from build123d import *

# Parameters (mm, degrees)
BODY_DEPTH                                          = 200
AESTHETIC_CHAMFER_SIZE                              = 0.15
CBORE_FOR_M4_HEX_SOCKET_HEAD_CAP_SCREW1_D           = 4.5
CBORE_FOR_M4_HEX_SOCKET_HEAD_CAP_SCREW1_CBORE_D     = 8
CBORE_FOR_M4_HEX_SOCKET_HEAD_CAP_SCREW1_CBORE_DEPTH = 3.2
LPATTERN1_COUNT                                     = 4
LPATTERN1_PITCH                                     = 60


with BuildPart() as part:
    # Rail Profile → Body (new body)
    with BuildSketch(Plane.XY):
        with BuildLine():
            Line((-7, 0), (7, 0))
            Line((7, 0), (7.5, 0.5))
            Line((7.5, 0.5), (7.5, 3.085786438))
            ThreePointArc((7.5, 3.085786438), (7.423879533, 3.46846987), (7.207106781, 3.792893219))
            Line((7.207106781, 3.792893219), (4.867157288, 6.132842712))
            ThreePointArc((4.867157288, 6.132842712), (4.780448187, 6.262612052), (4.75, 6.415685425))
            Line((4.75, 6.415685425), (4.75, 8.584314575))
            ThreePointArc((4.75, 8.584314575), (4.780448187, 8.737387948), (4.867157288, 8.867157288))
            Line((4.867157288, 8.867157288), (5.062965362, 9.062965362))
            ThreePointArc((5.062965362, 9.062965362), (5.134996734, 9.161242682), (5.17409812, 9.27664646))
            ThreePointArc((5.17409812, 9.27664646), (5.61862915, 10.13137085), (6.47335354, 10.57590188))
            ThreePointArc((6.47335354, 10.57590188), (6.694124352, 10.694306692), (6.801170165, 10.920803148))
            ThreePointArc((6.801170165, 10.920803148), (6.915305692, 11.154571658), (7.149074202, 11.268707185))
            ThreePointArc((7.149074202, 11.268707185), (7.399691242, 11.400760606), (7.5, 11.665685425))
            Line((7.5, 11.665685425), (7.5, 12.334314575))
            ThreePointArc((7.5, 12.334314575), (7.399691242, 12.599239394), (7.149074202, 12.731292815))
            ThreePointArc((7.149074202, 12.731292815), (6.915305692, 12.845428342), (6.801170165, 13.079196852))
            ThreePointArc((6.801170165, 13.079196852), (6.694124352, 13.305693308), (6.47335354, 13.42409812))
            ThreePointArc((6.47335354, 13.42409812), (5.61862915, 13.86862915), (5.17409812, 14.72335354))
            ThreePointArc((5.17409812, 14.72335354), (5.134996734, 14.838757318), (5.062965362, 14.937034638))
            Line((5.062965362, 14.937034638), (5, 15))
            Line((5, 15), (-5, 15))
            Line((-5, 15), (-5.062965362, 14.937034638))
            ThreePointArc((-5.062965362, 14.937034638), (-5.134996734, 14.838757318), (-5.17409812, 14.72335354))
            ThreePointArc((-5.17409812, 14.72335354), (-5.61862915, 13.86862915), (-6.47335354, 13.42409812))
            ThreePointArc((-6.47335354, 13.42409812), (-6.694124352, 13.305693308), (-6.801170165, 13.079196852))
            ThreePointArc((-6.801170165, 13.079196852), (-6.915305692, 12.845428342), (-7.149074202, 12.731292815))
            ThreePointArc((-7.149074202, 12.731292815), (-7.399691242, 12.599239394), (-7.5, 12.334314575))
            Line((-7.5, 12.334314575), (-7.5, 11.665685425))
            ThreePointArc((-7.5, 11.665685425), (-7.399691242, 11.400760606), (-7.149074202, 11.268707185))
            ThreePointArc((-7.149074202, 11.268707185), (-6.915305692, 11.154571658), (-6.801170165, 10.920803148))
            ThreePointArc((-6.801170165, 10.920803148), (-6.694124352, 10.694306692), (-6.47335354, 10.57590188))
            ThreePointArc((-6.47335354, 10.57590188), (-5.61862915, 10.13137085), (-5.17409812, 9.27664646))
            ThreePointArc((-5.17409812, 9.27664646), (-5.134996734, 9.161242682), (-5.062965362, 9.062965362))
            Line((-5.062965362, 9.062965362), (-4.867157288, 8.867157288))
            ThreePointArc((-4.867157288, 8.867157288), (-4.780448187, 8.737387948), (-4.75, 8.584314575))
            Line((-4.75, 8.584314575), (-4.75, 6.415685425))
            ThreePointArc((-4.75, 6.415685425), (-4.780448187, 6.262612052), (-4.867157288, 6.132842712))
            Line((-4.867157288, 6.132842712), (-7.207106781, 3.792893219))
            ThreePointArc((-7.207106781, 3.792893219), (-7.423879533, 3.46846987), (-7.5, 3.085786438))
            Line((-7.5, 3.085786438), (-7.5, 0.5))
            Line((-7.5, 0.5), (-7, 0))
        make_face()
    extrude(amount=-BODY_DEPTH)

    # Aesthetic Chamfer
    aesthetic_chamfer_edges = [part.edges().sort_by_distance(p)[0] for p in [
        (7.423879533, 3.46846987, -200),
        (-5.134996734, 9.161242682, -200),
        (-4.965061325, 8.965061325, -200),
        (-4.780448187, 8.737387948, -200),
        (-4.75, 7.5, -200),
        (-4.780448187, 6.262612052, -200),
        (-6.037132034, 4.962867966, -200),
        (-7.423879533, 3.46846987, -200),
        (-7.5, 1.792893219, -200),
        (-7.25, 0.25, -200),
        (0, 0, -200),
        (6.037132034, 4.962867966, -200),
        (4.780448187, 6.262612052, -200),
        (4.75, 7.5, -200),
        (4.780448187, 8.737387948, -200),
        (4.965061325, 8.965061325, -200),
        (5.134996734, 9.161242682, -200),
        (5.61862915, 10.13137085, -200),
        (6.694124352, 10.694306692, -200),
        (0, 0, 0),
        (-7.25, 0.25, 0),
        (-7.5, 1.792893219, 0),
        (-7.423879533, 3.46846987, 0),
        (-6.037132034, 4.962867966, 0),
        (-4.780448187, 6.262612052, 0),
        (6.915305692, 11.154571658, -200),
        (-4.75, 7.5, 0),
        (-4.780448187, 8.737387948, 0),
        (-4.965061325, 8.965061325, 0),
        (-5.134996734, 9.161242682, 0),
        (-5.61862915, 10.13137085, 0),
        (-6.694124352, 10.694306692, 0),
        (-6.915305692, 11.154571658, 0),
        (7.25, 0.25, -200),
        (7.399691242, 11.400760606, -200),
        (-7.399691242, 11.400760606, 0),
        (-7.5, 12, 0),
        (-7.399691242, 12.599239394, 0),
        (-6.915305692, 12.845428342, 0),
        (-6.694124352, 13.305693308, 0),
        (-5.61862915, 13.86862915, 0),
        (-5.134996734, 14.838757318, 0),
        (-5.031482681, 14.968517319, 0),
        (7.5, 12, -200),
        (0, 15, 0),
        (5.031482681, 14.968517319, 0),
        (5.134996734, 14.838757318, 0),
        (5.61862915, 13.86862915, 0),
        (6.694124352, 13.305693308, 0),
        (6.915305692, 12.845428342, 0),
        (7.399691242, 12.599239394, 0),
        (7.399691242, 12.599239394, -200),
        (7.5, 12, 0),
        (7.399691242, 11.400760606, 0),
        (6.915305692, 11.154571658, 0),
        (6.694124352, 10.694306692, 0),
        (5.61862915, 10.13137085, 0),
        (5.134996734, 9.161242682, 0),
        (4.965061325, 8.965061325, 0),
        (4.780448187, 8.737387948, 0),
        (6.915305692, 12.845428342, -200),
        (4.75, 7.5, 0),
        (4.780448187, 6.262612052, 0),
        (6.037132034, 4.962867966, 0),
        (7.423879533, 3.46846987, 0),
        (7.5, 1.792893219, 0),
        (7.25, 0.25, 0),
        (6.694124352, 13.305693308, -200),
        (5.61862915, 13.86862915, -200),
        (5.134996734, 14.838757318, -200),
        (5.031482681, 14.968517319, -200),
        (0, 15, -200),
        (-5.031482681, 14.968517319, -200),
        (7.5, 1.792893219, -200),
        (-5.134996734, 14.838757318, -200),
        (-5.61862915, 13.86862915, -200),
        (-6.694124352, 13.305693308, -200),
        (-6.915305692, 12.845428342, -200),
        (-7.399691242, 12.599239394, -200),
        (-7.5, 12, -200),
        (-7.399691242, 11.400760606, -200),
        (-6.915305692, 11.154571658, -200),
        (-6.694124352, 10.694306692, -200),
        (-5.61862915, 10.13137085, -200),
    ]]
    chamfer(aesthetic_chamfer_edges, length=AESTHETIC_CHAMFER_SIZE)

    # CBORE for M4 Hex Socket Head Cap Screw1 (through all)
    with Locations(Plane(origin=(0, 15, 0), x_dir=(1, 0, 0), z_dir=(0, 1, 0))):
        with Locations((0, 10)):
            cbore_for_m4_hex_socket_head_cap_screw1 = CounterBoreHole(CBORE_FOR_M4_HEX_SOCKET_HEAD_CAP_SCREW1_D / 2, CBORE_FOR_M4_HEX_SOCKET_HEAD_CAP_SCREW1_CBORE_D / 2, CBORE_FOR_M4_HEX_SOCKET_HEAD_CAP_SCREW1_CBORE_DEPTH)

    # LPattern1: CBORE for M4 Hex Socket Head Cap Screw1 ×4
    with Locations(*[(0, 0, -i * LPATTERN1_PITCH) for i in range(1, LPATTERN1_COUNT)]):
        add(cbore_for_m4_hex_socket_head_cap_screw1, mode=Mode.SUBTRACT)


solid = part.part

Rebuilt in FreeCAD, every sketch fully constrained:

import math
import FreeCAD as App
import Part
import Sketcher

V = App.Vector
Q = App.Units.Quantity


def edges_at(feature, points):
    """Names of the edges that pass closest to the given points."""
    edges = feature.Shape.Edges
    near = lambda p: min(range(len(edges)), key=lambda i: edges[i].distToShape(Part.Vertex(*p))[0])
    return sorted({f"Edge{near(p) + 1}" for p in points})

doc = App.newDocument("Part")
body = doc.addObject("PartDesign::Body", "Body")

# Sketch on XY plane
sketch1 = body.newObject("Sketcher::SketchObject", "Sketch")
sketch1.AttachmentSupport = (doc.getObject("XY_Plane"), [""])
sketch1.MapMode = "FlatFace"
sketch1.addGeometry(Part.LineSegment(V(-7, 0, 0), V(7, 0, 0)), False)
sketch1.addGeometry(Part.LineSegment(V(7, 0, 0), V(7.5, 0.5, 0)), False)
sketch1.addGeometry(Part.LineSegment(V(7.5, 0.5, 0), V(7.5, 3.085786, 0)), False)
sketch1.addGeometry(Part.ArcOfCircle(Part.Circle(V(6.5, 3.085786, 0), V(0, 0, 1), 1), math.radians(0), math.radians(45)), False)
sketch1.addGeometry(Part.LineSegment(V(7.207107, 3.792893, 0), V(4.867157, 6.132843, 0)), False)
sketch1.addGeometry(Part.ArcOfCircle(Part.Circle(V(5.15, 6.415685, 0), V(0, 0, 1), 0.4), math.radians(180), math.radians(225)), False)
sketch1.addGeometry(Part.LineSegment(V(4.75, 6.415685, 0), V(4.75, 8.584315, 0)), False)
sketch1.addGeometry(Part.ArcOfCircle(Part.Circle(V(5.15, 8.584315, 0), V(0, 0, 1), 0.4), math.radians(135), math.radians(180)), False)
sketch1.addGeometry(Part.LineSegment(V(4.867157, 8.867157, 0), V(5.062965, 9.062965, 0)), False)
sketch1.addGeometry(Part.ArcOfCircle(Part.Circle(V(4.780123, 9.345808, 0), V(0, 0, 1), 0.4), math.radians(-45), math.radians(-9.956709)), False)
sketch1.addGeometry(Part.ArcOfCircle(Part.Circle(V(6.75, 9, 0), V(0, 0, 1), 1.6), math.radians(99.956709), math.radians(170.043291)), False)
sketch1.addGeometry(Part.ArcOfCircle(Part.Circle(V(6.404192, 10.969877, 0), V(0, 0, 1), 0.4), math.radians(-80.043291), math.radians(-7.047116)), False)
sketch1.addGeometry(Part.ArcOfCircle(Part.Circle(V(7.198148, 10.871729, 0), V(0, 0, 1), 0.4), math.radians(97.047116), math.radians(172.952884)), False)
sketch1.addGeometry(Part.ArcOfCircle(Part.Circle(V(7.1, 11.665685, 0), V(0, 0, 1), 0.4), math.radians(-82.952884), math.radians(0)), False)
sketch1.addGeometry(Part.LineSegment(V(7.5, 11.665685, 0), V(7.5, 12.334315, 0)), False)
sketch1.addGeometry(Part.ArcOfCircle(Part.Circle(V(7.1, 12.334315, 0), V(0, 0, 1), 0.4), math.radians(0), math.radians(82.952884)), False)
sketch1.addGeometry(Part.ArcOfCircle(Part.Circle(V(7.198148, 13.128271, 0), V(0, 0, 1), 0.4), math.radians(-172.952884), math.radians(-97.047116)), False)
sketch1.addGeometry(Part.ArcOfCircle(Part.Circle(V(6.404192, 13.030123, 0), V(0, 0, 1), 0.4), math.radians(7.047116), math.radians(80.043291)), False)
sketch1.addGeometry(Part.ArcOfCircle(Part.Circle(V(6.75, 15, 0), V(0, 0, 1), 1.6), math.radians(-170.043291), math.radians(-99.956709)), False)
sketch1.addGeometry(Part.ArcOfCircle(Part.Circle(V(4.780123, 14.654192, 0), V(0, 0, 1), 0.4), math.radians(9.956709), math.radians(45)), False)
sketch1.addGeometry(Part.LineSegment(V(5.062965, 14.937035, 0), V(5, 15, 0)), False)
sketch1.addGeometry(Part.LineSegment(V(5, 15, 0), V(-5, 15, 0)), False)
sketch1.addGeometry(Part.LineSegment(V(-5, 15, 0), V(-5.062965, 14.937035, 0)), False)
sketch1.addGeometry(Part.ArcOfCircle(Part.Circle(V(-4.780123, 14.654192, 0), V(0, 0, 1), 0.4), math.radians(135), math.radians(170.043291)), False)
sketch1.addGeometry(Part.ArcOfCircle(Part.Circle(V(-6.75, 15, 0), V(0, 0, 1), 1.6), math.radians(-80.043291), math.radians(-9.956709)), False)
sketch1.addGeometry(Part.ArcOfCircle(Part.Circle(V(-6.404192, 13.030123, 0), V(0, 0, 1), 0.4), math.radians(99.956709), math.radians(172.952884)), False)
sketch1.addGeometry(Part.ArcOfCircle(Part.Circle(V(-7.198148, 13.128271, 0), V(0, 0, 1), 0.4), math.radians(-82.952884), math.radians(-7.047116)), False)
sketch1.addGeometry(Part.ArcOfCircle(Part.Circle(V(-7.1, 12.334315, 0), V(0, 0, 1), 0.4), math.radians(97.047116), math.radians(180)), False)
sketch1.addGeometry(Part.LineSegment(V(-7.5, 12.334315, 0), V(-7.5, 11.665685, 0)), False)
sketch1.addGeometry(Part.ArcOfCircle(Part.Circle(V(-7.1, 11.665685, 0), V(0, 0, 1), 0.4), math.radians(180), math.radians(262.952884)), False)
sketch1.addGeometry(Part.ArcOfCircle(Part.Circle(V(-7.198148, 10.871729, 0), V(0, 0, 1), 0.4), math.radians(7.047116), math.radians(82.952884)), False)
sketch1.addGeometry(Part.ArcOfCircle(Part.Circle(V(-6.404192, 10.969877, 0), V(0, 0, 1), 0.4), math.radians(-172.952884), math.radians(-99.956709)), False)
sketch1.addGeometry(Part.ArcOfCircle(Part.Circle(V(-6.75, 9, 0), V(0, 0, 1), 1.6), math.radians(9.956709), math.radians(80.043291)), False)
sketch1.addGeometry(Part.ArcOfCircle(Part.Circle(V(-4.780123, 9.345808, 0), V(0, 0, 1), 0.4), math.radians(-170.043291), math.radians(-135)), False)
sketch1.addGeometry(Part.LineSegment(V(-5.062965, 9.062965, 0), V(-4.867157, 8.867157, 0)), False)
sketch1.addGeometry(Part.ArcOfCircle(Part.Circle(V(-5.15, 8.584315, 0), V(0, 0, 1), 0.4), math.radians(0), math.radians(45)), False)
sketch1.addGeometry(Part.LineSegment(V(-4.75, 8.584315, 0), V(-4.75, 6.415685, 0)), False)
sketch1.addGeometry(Part.ArcOfCircle(Part.Circle(V(-5.15, 6.415685, 0), V(0, 0, 1), 0.4), math.radians(-45), math.radians(0)), False)
sketch1.addGeometry(Part.LineSegment(V(-4.867157, 6.132843, 0), V(-7.207107, 3.792893, 0)), False)
sketch1.addGeometry(Part.ArcOfCircle(Part.Circle(V(-6.5, 3.085786, 0), V(0, 0, 1), 1), math.radians(135), math.radians(180)), False)
sketch1.addGeometry(Part.LineSegment(V(-7.5, 3.085786, 0), V(-7.5, 0.5, 0)), False)
sketch1.addGeometry(Part.LineSegment(V(-7.5, 0.5, 0), V(-7, 0, 0)), False)
sketch1.addConstraint(Sketcher.Constraint("Coincident", 0, 2, 1, 1))
sketch1.addConstraint(Sketcher.Constraint("Coincident", 1, 2, 2, 1))
sketch1.addConstraint(Sketcher.Constraint("Tangent", 2, 2, 3, 1))
sketch1.addConstraint(Sketcher.Constraint("Tangent", 3, 2, 4, 1))
sketch1.addConstraint(Sketcher.Constraint("Tangent", 4, 2, 5, 2))
sketch1.addConstraint(Sketcher.Constraint("Tangent", 5, 1, 6, 1))
sketch1.addConstraint(Sketcher.Constraint("Tangent", 6, 2, 7, 2))
sketch1.addConstraint(Sketcher.Constraint("Tangent", 7, 1, 8, 1))
sketch1.addConstraint(Sketcher.Constraint("Tangent", 8, 2, 9, 1))
sketch1.addConstraint(Sketcher.Constraint("Tangent", 9, 2, 10, 2))
sketch1.addConstraint(Sketcher.Constraint("Tangent", 10, 1, 11, 1))
sketch1.addConstraint(Sketcher.Constraint("Tangent", 11, 2, 12, 2))
sketch1.addConstraint(Sketcher.Constraint("Tangent", 12, 1, 13, 1))
sketch1.addConstraint(Sketcher.Constraint("Tangent", 13, 2, 14, 1))
sketch1.addConstraint(Sketcher.Constraint("Tangent", 14, 2, 15, 1))
sketch1.addConstraint(Sketcher.Constraint("Tangent", 15, 2, 16, 2))
sketch1.addConstraint(Sketcher.Constraint("Tangent", 16, 1, 17, 1))
sketch1.addConstraint(Sketcher.Constraint("Tangent", 17, 2, 18, 2))
sketch1.addConstraint(Sketcher.Constraint("Tangent", 18, 1, 19, 1))
sketch1.addConstraint(Sketcher.Constraint("Tangent", 19, 2, 20, 1))
sketch1.addConstraint(Sketcher.Constraint("Coincident", 20, 2, 21, 1))
sketch1.addConstraint(Sketcher.Constraint("Coincident", 21, 2, 22, 1))
sketch1.addConstraint(Sketcher.Constraint("Tangent", 22, 2, 23, 1))
sketch1.addConstraint(Sketcher.Constraint("Tangent", 23, 2, 24, 2))
sketch1.addConstraint(Sketcher.Constraint("Tangent", 24, 1, 25, 1))
sketch1.addConstraint(Sketcher.Constraint("Tangent", 25, 2, 26, 2))
sketch1.addConstraint(Sketcher.Constraint("Tangent", 26, 1, 27, 1))
sketch1.addConstraint(Sketcher.Constraint("Tangent", 27, 2, 28, 1))
sketch1.addConstraint(Sketcher.Constraint("Tangent", 28, 2, 29, 1))
sketch1.addConstraint(Sketcher.Constraint("Tangent", 29, 2, 30, 2))
sketch1.addConstraint(Sketcher.Constraint("Tangent", 30, 1, 31, 1))
sketch1.addConstraint(Sketcher.Constraint("Tangent", 31, 2, 32, 2))
sketch1.addConstraint(Sketcher.Constraint("Tangent", 32, 1, 33, 1))
sketch1.addConstraint(Sketcher.Constraint("Tangent", 33, 2, 34, 1))
sketch1.addConstraint(Sketcher.Constraint("Tangent", 34, 2, 35, 2))
sketch1.addConstraint(Sketcher.Constraint("Tangent", 35, 1, 36, 1))
sketch1.addConstraint(Sketcher.Constraint("Tangent", 36, 2, 37, 2))
sketch1.addConstraint(Sketcher.Constraint("Tangent", 37, 1, 38, 1))
sketch1.addConstraint(Sketcher.Constraint("Tangent", 38, 2, 39, 1))
sketch1.addConstraint(Sketcher.Constraint("Tangent", 39, 2, 40, 1))
sketch1.addConstraint(Sketcher.Constraint("Coincident", 40, 2, 41, 1))
sketch1.addConstraint(Sketcher.Constraint("Coincident", 41, 2, 0, 1))
sketch1.addConstraint(Sketcher.Constraint("Horizontal", 0))
sketch1.addConstraint(Sketcher.Constraint("Vertical", 2))
sketch1.addConstraint(Sketcher.Constraint("Vertical", 6))
sketch1.addConstraint(Sketcher.Constraint("Vertical", 14))
sketch1.addConstraint(Sketcher.Constraint("Horizontal", 21))
sketch1.addConstraint(Sketcher.Constraint("Vertical", 28))
sketch1.addConstraint(Sketcher.Constraint("Vertical", 36))
sketch1.addConstraint(Sketcher.Constraint("Vertical", 40))
sketch1.addConstraint(Sketcher.Constraint("Equal", 5, 7))
sketch1.addConstraint(Sketcher.Constraint("Equal", 7, 9))
sketch1.addConstraint(Sketcher.Constraint("Equal", 9, 11))
sketch1.addConstraint(Sketcher.Constraint("Equal", 11, 12))
sketch1.addConstraint(Sketcher.Constraint("Equal", 12, 13))
sketch1.addConstraint(Sketcher.Constraint("Equal", 13, 15))
sketch1.addConstraint(Sketcher.Constraint("Equal", 15, 16))
sketch1.addConstraint(Sketcher.Constraint("Equal", 16, 17))
sketch1.addConstraint(Sketcher.Constraint("Equal", 10, 18))
sketch1.addConstraint(Sketcher.Constraint("Equal", 17, 19))
sketch1.addConstraint(Sketcher.Constraint("Equal", 19, 23))
sketch1.addConstraint(Sketcher.Constraint("Equal", 18, 24))
sketch1.addConstraint(Sketcher.Constraint("Equal", 23, 25))
sketch1.addConstraint(Sketcher.Constraint("Equal", 25, 26))
sketch1.addConstraint(Sketcher.Constraint("Equal", 26, 27))
sketch1.addConstraint(Sketcher.Constraint("Equal", 27, 29))
sketch1.addConstraint(Sketcher.Constraint("Equal", 29, 30))
sketch1.addConstraint(Sketcher.Constraint("Equal", 30, 31))
sketch1.addConstraint(Sketcher.Constraint("Equal", 24, 32))
sketch1.addConstraint(Sketcher.Constraint("Equal", 31, 33))
sketch1.addConstraint(Sketcher.Constraint("Equal", 33, 35))
sketch1.addConstraint(Sketcher.Constraint("Equal", 35, 37))
sketch1.addConstraint(Sketcher.Constraint("Equal", 3, 39))
sketch1.addConstraint(Sketcher.Constraint("Symmetric", 0, 2, 41, 2, -1, 1))
sketch1.addConstraint(Sketcher.Constraint("Symmetric", 19, 3, 23, 3, -2))
sketch1.addConstraint(Sketcher.Constraint("Symmetric", 17, 3, 25, 3, -2))
sketch1.addConstraint(Sketcher.Constraint("Symmetric", 15, 3, 27, 3, -2))
sketch1.addConstraint(Sketcher.Constraint("Symmetric", 12, 3, 30, 3, -2))
sketch1.addConstraint(Sketcher.Constraint("Symmetric", 10, 3, 32, 3, -2))
sketch1.addConstraint(Sketcher.Constraint("Symmetric", 7, 3, 35, 3, -2))
sketch1.addConstraint(Sketcher.Constraint("Symmetric", 3, 3, 39, 3, -2))
sketch1.addConstraint(Sketcher.Constraint("Perpendicular", 1, 4))
sketch1.addConstraint(Sketcher.Constraint("Perpendicular", 4, 8))
sketch1.addConstraint(Sketcher.Constraint("Perpendicular", 8, 20))
sketch1.addConstraint(Sketcher.Constraint("Perpendicular", 20, 22))
sketch1.addConstraint(Sketcher.Constraint("Perpendicular", 22, 34))
sketch1.addConstraint(Sketcher.Constraint("Perpendicular", 34, 38))
sketch1.addConstraint(Sketcher.Constraint("Perpendicular", 38, 41))
sketch1.addConstraint(Sketcher.Constraint("Horizontal", 9, 3, 33, 3))
sketch1.addConstraint(Sketcher.Constraint("Horizontal", 24, 3, 20, 2))
sketch1.addConstraint(Sketcher.Constraint("Vertical", 12, 3, 16, 3))
sketch1.addConstraint(Sketcher.Constraint("Vertical", 11, 3, 17, 3))
sketch1.addConstraint(Sketcher.Constraint("Vertical", 10, 3, 18, 3))
sketch1.addConstraint(Sketcher.Constraint("Vertical", 9, 3, 19, 3))
sketch1.addConstraint(Sketcher.Constraint("Vertical", 2, 2, 13, 2))
sketch1.addConstraint(Sketcher.Constraint("Radius", 3, Q("1 mm")))
sketch1.addConstraint(Sketcher.Constraint("Radius", 5, Q("0.4 mm")))
sketch1.addConstraint(Sketcher.Constraint("Radius", 10, Q("1.6 mm")))
sketch1.addConstraint(Sketcher.Constraint("DistanceX", 0, 1, 0, 2, Q("14 mm")))
sketch1.addConstraint(Sketcher.Constraint("DistanceX", 21, 2, 21, 1, Q("10 mm")))
sketch1.addConstraint(Sketcher.Constraint("DistanceY", -1, 1, 10, 3, Q("9 mm")))
sketch1.addConstraint(Sketcher.Constraint("DistanceY", -1, 1, 18, 3, Q("15 mm")))
sketch1.addConstraint(Sketcher.Constraint("DistanceX", -1, 1, 3, 3, Q("6.5 mm")))
sketch1.addConstraint(Sketcher.Constraint("DistanceX", -1, 1, 5, 3, Q("5.15 mm")))
sketch1.addConstraint(Sketcher.Constraint("DistanceX", -1, 1, 10, 3, Q("6.75 mm")))
sketch1.addConstraint(Sketcher.Constraint("DistanceY", 6, 1, 6, 2, Q("2.168629 mm")))
sketch1.addConstraint(Sketcher.Constraint("DistanceY", 14, 1, 14, 2, Q("0.668629 mm")))
sketch1.addConstraint(Sketcher.Constraint("DistanceY", -1, 1, 10, 1, Q("10.575902 mm")))
pad1 = body.newObject("PartDesign::Pad", "Pad")
pad1.Profile = sketch1
pad1.Length = 200
pad1.Reversed = True
doc.recompute()

chamfer = body.newObject("PartDesign::Chamfer", "Chamfer")
chamfer.Base = (pad1, edges_at(pad1, [
    (7.424, 3.468, -200),
    (-5.135, 9.161, -200),
    (-4.965, 8.965, -200),
    (-4.78, 8.737, -200),
    (-4.75, 7.5, -200),
    (-4.78, 6.263, -200),
    (-6.037, 4.963, -200),
    (-7.424, 3.468, -200),
    (-7.5, 1.793, -200),
    (-7.25, 0.25, -200),
    (0, 0, -200),
    (6.037, 4.963, -200),
    (4.78, 6.263, -200),
    (4.75, 7.5, -200),
    (4.78, 8.737, -200),
    (4.965, 8.965, -200),
    (5.135, 9.161, -200),
    (5.619, 10.131, -200),
    (6.694, 10.694, -200),
    (0, 0, 0),
    (-7.25, 0.25, 0),
    (-7.5, 1.793, 0),
    (-7.424, 3.468, 0),
    (-6.037, 4.963, 0),
    (-4.78, 6.263, 0),
    (6.915, 11.155, -200),
    (-4.75, 7.5, 0),
    (-4.78, 8.737, 0),
    (-4.965, 8.965, 0),
    (-5.135, 9.161, 0),
    (-5.619, 10.131, 0),
    (-6.694, 10.694, 0),
    (-6.915, 11.155, 0),
    (7.25, 0.25, -200),
    (7.4, 11.401, -200),
    (-7.4, 11.401, 0),
    (-7.5, 12, 0),
    (-7.4, 12.599, 0),
    (-6.915, 12.845, 0),
    (-6.694, 13.306, 0),
    (-5.619, 13.869, 0),
    (-5.135, 14.839, 0),
    (-5.031, 14.969, 0),
    (7.5, 12, -200),
    (0, 15, 0),
    (5.031, 14.969, 0),
    (5.135, 14.839, 0),
    (5.619, 13.869, 0),
    (6.694, 13.306, 0),
    (6.915, 12.845, 0),
    (7.4, 12.599, 0),
    (7.4, 12.599, -200),
    (7.5, 12, 0),
    (7.4, 11.401, 0),
    (6.915, 11.155, 0),
    (6.694, 10.694, 0),
    (5.619, 10.131, 0),
    (5.135, 9.161, 0),
    (4.965, 8.965, 0),
    (4.78, 8.737, 0),
    (6.915, 12.845, -200),
    (4.75, 7.5, 0),
    (4.78, 6.263, 0),
    (6.037, 4.963, 0),
    (7.424, 3.468, 0),
    (7.5, 1.793, 0),
    (7.25, 0.25, 0),
    (6.694, 13.306, -200),
    (5.619, 13.869, -200),
    (5.135, 14.839, -200),
    (5.031, 14.969, -200),
    (0, 15, -200),
    (-5.031, 14.969, -200),
    (7.5, 1.793, -200),
    (-5.135, 14.839, -200),
    (-5.619, 13.869, -200),
    (-6.694, 13.306, -200),
    (-6.915, 12.845, -200),
    (-7.4, 12.599, -200),
    (-7.5, 12, -200),
    (-7.4, 11.401, -200),
    (-6.915, 11.155, -200),
    (-6.694, 10.694, -200),
    (-5.619, 10.131, -200),
]))
chamfer.Size = 0.15

# Sketch on XZ plane
sketch2 = body.newObject("Sketcher::SketchObject", "Sketch001")
sketch2.AttachmentSupport = (doc.getObject("XZ_Plane"), [""])
sketch2.MapMode = "FlatFace"
sketch2.AttachmentOffset = App.Placement(V(0, 0, -15), App.Rotation())
sketch2.addGeometry(Part.Circle(V(0, -10, 0), V(0, 0, 1), 2.25), False)
sketch2.addConstraint(Sketcher.Constraint("PointOnObject", 0, 3, -2))
sketch2.addConstraint(Sketcher.Constraint("Diameter", 0, Q("4.5 mm")))
sketch2.addConstraint(Sketcher.Constraint("DistanceY", 0, 3, -1, 1, Q("10 mm")))
doc.recompute()
hole = body.newObject("PartDesign::Hole", "Hole")
hole.Profile = sketch2
hole.ThreadType = "None"
hole.Diameter = 4.5
hole.DepthType = "ThroughAll"
hole.HoleCutType = "Counterbore"
hole.HoleCutDiameter = 8
hole.HoleCutDepth = 3.2
hole.Reversed = True
doc.recompute()

linearpattern = body.newObject("PartDesign::LinearPattern", "LinearPattern")
linearpattern.Originals = [hole]
linearpattern.Direction = (doc.getObject("Z_Axis"), [""])
linearpattern.Mode = "offset"
linearpattern.Offset = 60
linearpattern.Occurrences = 4
linearpattern.Reversed = True
body.Tip = linearpattern

doc.recompute()
